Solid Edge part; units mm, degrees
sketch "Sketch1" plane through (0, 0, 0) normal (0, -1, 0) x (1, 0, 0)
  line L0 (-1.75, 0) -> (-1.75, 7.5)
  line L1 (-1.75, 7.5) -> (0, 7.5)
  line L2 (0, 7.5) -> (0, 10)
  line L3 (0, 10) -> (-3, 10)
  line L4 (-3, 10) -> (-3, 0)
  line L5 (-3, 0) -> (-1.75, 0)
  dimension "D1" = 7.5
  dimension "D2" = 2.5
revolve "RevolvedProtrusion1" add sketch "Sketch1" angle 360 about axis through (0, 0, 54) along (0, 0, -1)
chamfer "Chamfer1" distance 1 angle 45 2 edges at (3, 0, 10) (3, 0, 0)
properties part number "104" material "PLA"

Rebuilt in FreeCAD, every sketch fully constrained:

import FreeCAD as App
import Part
import Sketcher
from FreeCAD import Vector
Q = App.Units.Quantity


def edges_at(feature, points):
    """Names of the edges that pass closest to the given points."""
    edges = feature.Shape.Edges
    near = lambda p: min(range(len(edges)), key=lambda i: edges[i].distToShape(Part.Vertex(*p))[0])
    return sorted({f"Edge{near(p) + 1}" for p in points})


def add_polygon(sketch, points):
    """Adds a closed chain of lines whose ends are joined by coincident constraints."""
    first, n = sketch.GeometryCount, len(points)
    for a, b in zip(points, points[1:] + points[:1]):
        sketch.addGeometry(Part.LineSegment(App.Vector(*a, 0), App.Vector(*b, 0)), False)
    for i in range(n):
        sketch.addConstraint(Sketcher.Constraint("Coincident", first + i, 2, first + (i + 1) % n, 1))

doc = App.newDocument("Part")
body = doc.addObject("PartDesign::Body", "Body")

# Sketch on XZ plane
sketch1 = body.newObject("Sketcher::SketchObject", "Sketch")
sketch1.AttachmentSupport = (doc.getObject("XZ_Plane"), [""])
sketch1.MapMode = "FlatFace"
add_polygon(sketch1, [(-3, 0), (-1.75, 0), (-1.75, 7.5), (0, 7.5), (0, 10), (-3, 10)])  # lines 0-5
sketch1.addConstraint([
    Sketcher.Constraint("Horizontal", 0),
    Sketcher.Constraint("Vertical", 1),
    Sketcher.Constraint("Horizontal", 2),
    Sketcher.Constraint("Vertical", 3),
    Sketcher.Constraint("Horizontal", 4),
    Sketcher.Constraint("Vertical", 5),
    Sketcher.Constraint("PointOnObject", 0, 2, -1),
    Sketcher.Constraint("PointOnObject", 2, 2, -2),
    Sketcher.Constraint("DistanceX", 4, 2, 4, 1, Q("3 mm")),
    Sketcher.Constraint("DistanceY", 5, 2, 5, 1, Q("10 mm")),
    Sketcher.Constraint("DistanceY", 1, 1, 1, 2, Q("7.5 mm")),
    Sketcher.Constraint("DistanceX", 0, 1, 0, 2, Q("1.25 mm")),
])
revolution = body.newObject("PartDesign::Revolution", "Revolution")
revolution.Profile = sketch1
revolution.ReferenceAxis = (sketch1, ["V_Axis"])
revolution.Angle = 360
doc.recompute()

chamfer = body.newObject("PartDesign::Chamfer", "Chamfer")
chamfer.Base = (revolution, edges_at(revolution, [(3, 0, 10), (3, 0, 0)]))
chamfer.Size = 1

doc.recompute()
